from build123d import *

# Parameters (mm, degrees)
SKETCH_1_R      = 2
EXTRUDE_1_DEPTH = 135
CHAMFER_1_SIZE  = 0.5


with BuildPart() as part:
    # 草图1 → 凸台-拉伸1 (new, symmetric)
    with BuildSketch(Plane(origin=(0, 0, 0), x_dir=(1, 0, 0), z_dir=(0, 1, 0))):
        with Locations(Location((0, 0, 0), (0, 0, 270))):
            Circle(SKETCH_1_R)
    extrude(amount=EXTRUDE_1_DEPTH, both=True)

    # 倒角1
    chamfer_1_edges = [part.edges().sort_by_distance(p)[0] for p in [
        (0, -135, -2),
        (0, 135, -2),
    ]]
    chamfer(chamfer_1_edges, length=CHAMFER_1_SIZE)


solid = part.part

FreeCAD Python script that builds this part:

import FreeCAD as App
import Part
import Sketcher
from FreeCAD import Vector
Q = App.Units.Quantity


def edges_at(feature, points):
    """Names of the edges that pass closest to the given points."""
    edges = feature.Shape.Edges
    near = lambda p: min(range(len(edges)), key=lambda i: edges[i].distToShape(Part.Vertex(*p))[0])
    return sorted({f"Edge{near(p) + 1}" for p in points})

doc = App.newDocument("Part")
body = doc.addObject("PartDesign::Body", "Body")

# Sketch on XZ plane
sketch1 = body.newObject("Sketcher::SketchObject", "Sketch")
sketch1.AttachmentSupport = (doc.getObject("XZ_Plane"), [""])
sketch1.MapMode = "FlatFace"
sketch1.addGeometry(Part.Circle(Vector(0, 0, 0), Vector(0, 0, 1), 2), False)
sketch1.addConstraint([
    Sketcher.Constraint("Coincident", 0, 3, -1, 1),
    Sketcher.Constraint("Diameter", 0, Q("4 mm")),
])
pad1 = body.newObject("PartDesign::Pad", "Pad")
pad1.Profile = sketch1
pad1.Length = 270
pad1.Midplane = True
doc.recompute()

chamfer = body.newObject("PartDesign::Chamfer", "Chamfer")
chamfer.Base = (pad1, edges_at(pad1, [(0, -135, -2), (0, 135, -2)]))
chamfer.Size = 0.5

doc.recompute()
